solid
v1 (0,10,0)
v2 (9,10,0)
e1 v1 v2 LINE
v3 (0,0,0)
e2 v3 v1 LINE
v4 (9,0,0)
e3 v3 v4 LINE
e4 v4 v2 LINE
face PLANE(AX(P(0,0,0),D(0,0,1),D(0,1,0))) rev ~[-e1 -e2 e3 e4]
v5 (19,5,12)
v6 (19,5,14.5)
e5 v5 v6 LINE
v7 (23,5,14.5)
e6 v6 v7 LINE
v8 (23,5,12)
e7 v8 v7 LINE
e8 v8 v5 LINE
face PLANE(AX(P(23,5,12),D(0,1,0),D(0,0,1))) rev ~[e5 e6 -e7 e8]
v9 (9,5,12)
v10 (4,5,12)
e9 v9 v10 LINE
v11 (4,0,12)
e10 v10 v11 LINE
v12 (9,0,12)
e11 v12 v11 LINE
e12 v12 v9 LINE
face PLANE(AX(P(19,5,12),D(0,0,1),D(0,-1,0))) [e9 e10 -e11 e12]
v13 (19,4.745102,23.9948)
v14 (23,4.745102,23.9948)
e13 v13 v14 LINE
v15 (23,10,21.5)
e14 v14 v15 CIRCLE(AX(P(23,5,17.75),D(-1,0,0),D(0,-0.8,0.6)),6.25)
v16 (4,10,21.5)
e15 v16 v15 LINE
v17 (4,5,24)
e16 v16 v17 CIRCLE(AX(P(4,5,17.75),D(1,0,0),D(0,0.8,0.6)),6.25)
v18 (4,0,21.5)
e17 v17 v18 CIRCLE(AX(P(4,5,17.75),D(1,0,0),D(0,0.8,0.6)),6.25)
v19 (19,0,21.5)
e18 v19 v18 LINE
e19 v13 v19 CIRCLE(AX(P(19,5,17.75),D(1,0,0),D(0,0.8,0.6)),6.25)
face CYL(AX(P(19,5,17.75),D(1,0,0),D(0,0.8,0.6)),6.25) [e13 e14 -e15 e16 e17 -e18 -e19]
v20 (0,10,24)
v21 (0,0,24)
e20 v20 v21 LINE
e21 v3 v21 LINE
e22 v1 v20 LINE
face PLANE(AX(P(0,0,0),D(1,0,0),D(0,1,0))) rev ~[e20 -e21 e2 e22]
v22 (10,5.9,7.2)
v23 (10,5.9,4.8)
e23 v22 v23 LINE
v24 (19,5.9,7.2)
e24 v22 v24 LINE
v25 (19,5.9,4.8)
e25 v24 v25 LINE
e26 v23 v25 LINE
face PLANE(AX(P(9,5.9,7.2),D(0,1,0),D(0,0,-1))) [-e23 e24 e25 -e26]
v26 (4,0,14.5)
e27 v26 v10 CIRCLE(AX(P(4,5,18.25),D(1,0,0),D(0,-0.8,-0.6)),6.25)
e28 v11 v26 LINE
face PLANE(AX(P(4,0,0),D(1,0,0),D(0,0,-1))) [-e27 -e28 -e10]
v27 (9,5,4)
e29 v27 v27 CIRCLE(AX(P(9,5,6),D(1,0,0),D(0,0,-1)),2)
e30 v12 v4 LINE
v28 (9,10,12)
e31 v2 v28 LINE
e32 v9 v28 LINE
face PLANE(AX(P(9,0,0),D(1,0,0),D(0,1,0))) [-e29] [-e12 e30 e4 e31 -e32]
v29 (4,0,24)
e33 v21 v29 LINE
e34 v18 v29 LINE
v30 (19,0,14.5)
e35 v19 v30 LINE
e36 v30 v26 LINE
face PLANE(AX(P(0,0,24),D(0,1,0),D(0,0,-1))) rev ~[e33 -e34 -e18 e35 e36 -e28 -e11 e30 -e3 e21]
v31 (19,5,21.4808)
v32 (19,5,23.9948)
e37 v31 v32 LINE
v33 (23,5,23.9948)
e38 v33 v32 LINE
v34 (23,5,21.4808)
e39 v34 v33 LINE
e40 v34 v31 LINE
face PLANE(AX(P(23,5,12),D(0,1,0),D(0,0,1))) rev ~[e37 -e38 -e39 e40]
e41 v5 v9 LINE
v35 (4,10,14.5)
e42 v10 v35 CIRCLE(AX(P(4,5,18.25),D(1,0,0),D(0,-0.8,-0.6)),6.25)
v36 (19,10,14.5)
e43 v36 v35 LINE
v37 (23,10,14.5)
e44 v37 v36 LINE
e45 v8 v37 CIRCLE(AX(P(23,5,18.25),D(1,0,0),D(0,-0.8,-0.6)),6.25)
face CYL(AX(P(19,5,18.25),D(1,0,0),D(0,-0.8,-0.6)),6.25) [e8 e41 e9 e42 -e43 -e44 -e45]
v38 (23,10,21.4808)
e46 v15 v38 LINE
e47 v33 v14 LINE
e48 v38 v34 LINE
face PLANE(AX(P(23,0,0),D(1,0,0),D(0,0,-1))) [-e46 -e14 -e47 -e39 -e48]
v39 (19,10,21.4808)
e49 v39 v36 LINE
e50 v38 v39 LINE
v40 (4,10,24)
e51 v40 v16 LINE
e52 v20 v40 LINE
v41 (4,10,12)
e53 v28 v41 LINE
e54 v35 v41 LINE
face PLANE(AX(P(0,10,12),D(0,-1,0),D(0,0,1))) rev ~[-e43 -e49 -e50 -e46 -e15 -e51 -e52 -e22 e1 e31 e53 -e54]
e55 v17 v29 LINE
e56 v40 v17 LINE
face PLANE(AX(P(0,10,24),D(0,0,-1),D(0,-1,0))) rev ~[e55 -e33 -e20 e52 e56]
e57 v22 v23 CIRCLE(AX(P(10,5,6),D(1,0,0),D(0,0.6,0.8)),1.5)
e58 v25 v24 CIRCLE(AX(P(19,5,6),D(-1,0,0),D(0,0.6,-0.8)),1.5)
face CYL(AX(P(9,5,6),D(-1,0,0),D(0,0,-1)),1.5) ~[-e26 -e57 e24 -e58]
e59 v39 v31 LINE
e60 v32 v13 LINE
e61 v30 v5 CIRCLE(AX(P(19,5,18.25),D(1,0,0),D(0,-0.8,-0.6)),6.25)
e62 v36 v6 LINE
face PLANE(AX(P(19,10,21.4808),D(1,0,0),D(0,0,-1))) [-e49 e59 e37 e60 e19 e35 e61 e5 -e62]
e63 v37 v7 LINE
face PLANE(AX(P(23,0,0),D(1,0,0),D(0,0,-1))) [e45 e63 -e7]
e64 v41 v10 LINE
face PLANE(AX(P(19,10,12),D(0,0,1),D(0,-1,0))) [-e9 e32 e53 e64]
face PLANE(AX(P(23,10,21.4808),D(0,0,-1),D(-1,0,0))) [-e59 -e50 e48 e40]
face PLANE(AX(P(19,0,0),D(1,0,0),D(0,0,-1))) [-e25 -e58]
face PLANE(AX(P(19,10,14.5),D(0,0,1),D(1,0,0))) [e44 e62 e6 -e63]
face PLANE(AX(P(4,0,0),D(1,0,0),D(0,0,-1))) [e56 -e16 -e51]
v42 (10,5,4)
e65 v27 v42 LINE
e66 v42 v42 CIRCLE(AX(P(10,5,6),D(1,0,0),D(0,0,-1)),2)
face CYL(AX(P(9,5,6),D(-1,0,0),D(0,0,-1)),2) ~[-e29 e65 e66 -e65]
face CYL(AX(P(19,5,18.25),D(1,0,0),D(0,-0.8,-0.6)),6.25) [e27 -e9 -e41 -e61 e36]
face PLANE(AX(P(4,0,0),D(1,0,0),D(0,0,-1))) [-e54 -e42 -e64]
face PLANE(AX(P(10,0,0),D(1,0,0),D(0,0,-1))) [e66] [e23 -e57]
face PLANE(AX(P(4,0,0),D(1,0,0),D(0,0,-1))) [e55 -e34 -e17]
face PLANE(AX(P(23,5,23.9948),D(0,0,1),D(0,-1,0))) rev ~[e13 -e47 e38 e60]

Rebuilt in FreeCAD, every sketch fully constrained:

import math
import FreeCAD as App
import Part
import Sketcher
from FreeCAD import Vector
Q = App.Units.Quantity


def add_polygon(sketch, points):
    """Adds a closed chain of lines whose ends are joined by coincident constraints."""
    first, n = sketch.GeometryCount, len(points)
    for a, b in zip(points, points[1:] + points[:1]):
        sketch.addGeometry(Part.LineSegment(App.Vector(*a, 0), App.Vector(*b, 0)), False)
    for i in range(n):
        sketch.addConstraint(Sketcher.Constraint("Coincident", first + i, 2, first + (i + 1) % n, 1))

doc = App.newDocument("Part")
body = doc.addObject("PartDesign::Body", "Body")

# Sketch on YZ plane
sketch1 = body.newObject("Sketcher::SketchObject", "Sketch")
sketch1.AttachmentSupport = (doc.getObject("YZ_Plane"), [""])
sketch1.MapMode = "FlatFace"
add_polygon(sketch1, [(10, 12), (10, 24), (0, 24), (0, 12)])  # lines 0-3
sketch1.addConstraint([
    Sketcher.Constraint("Vertical", 0),
    Sketcher.Constraint("Horizontal", 1),
    Sketcher.Constraint("Vertical", 2),
    Sketcher.Constraint("Horizontal", 3),
    Sketcher.Constraint("PointOnObject", 1, 2, -2),
    Sketcher.Constraint("DistanceX", 1, 2, 1, 1, Q("10 mm")),
    Sketcher.Constraint("DistanceY", 0, 1, 0, 2, Q("12 mm")),
    Sketcher.Constraint("DistanceY", -1, 1, 0, 2, Q("24 mm")),
])
pad1 = body.newObject("PartDesign::Pad", "Pad")
pad1.Profile = sketch1
pad1.Length = 19

# Sketch on YZ plane
sketch2 = body.newObject("Sketcher::SketchObject", "Sketch001")
sketch2.AttachmentSupport = (doc.getObject("YZ_Plane"), [""])
sketch2.MapMode = "FlatFace"
add_polygon(sketch2, [(10, 0), (10, 12), (0, 12), (0, 0)])  # lines 0-3
sketch2.addConstraint([
    Sketcher.Constraint("Vertical", 0),
    Sketcher.Constraint("Horizontal", 1),
    Sketcher.Constraint("Vertical", 2),
    Sketcher.Constraint("Horizontal", 3),
    Sketcher.Constraint("Coincident", 2, 2, -1, 1),
    Sketcher.Constraint("DistanceX", 1, 2, 1, 1, Q("10 mm")),
    Sketcher.Constraint("DistanceY", 0, 1, 0, 2, Q("12 mm")),
])
pad2 = body.newObject("PartDesign::Pad", "Pad001")
pad2.Profile = sketch2
pad2.Length = 9

# Sketch on YZ plane
sketch3 = body.newObject("Sketcher::SketchObject", "Sketch002")
sketch3.AttachmentSupport = (doc.getObject("YZ_Plane"), [""])
sketch3.MapMode = "FlatFace"
sketch3.AttachmentOffset = App.Placement(Vector(0, 0, 9), App.Rotation())
sketch3.addGeometry([
    Part.Circle(Vector(5, 6, 0), Vector(0, 0, 1), 2),
    Part.Circle(Vector(5, 6, 0), Vector(0, 0, 1), 1.5),
], False)
sketch3.addConstraint([
    Sketcher.Constraint("Coincident", 1, 3, 0, 3),
    Sketcher.Constraint("Diameter", 0, Q("4 mm")),
    Sketcher.Constraint("Diameter", 1, Q("3 mm")),
    Sketcher.Constraint("DistanceX", -1, 1, 0, 3, Q("5 mm")),
    Sketcher.Constraint("DistanceY", -1, 1, 0, 3, Q("6 mm")),
])
pad3 = body.newObject("PartDesign::Pad", "Pad002")
pad3.Profile = sketch3
pad3.Length = 1

# Sketch on YZ plane
sketch4 = body.newObject("Sketcher::SketchObject", "Sketch003")
sketch4.AttachmentSupport = (doc.getObject("YZ_Plane"), [""])
sketch4.MapMode = "FlatFace"
sketch4.AttachmentOffset = App.Placement(Vector(0, 0, 9), App.Rotation())
sketch4.addGeometry([
    Part.ArcOfCircle(Part.Circle(Vector(5, 6, 0), Vector(0, 0, 1), 1.5), math.radians(53.130102), math.radians(306.869898)),
    Part.LineSegment(Vector(5.9, 4.8, 0), Vector(5.9, 7.2, 0)),
], False)
sketch4.addConstraint([
    Sketcher.Constraint("Coincident", 0, 1, 1, 2),
    Sketcher.Constraint("Coincident", 1, 1, 0, 2),
    Sketcher.Constraint("Vertical", 1),
    Sketcher.Constraint("Radius", 0, Q("1.5 mm")),
    Sketcher.Constraint("DistanceY", 1, 1, 1, 2, Q("2.4 mm")),
    Sketcher.Constraint("DistanceX", -1, 1, 0, 3, Q("5 mm")),
    Sketcher.Constraint("DistanceY", -1, 1, 0, 3, Q("6 mm")),
])
pad4 = body.newObject("PartDesign::Pad", "Pad003")
pad4.Profile = sketch4
pad4.Length = 10

# Sketch on YZ plane
sketch5 = body.newObject("Sketcher::SketchObject", "Sketch004")
sketch5.AttachmentSupport = (doc.getObject("YZ_Plane"), [""])
sketch5.MapMode = "FlatFace"
sketch5.AttachmentOffset = App.Placement(Vector(0, 0, 9), App.Rotation())
sketch5.addGeometry([
    Part.LineSegment(Vector(5.9, 7.2, 0), Vector(5.9, 4.8, 0)),
    Part.ArcOfCircle(Part.Circle(Vector(5, 6, 0), Vector(0, 0, 1), 1.5), math.radians(-53.130102), math.radians(53.130102)),
], False)
sketch5.addConstraint([
    Sketcher.Constraint("Coincident", 0, 1, 1, 2),
    Sketcher.Constraint("Coincident", 1, 1, 0, 2),
    Sketcher.Constraint("Vertical", 0),
    Sketcher.Constraint("Radius", 1, Q("1.5 mm")),
    Sketcher.Constraint("DistanceY", 0, 2, 0, 1, Q("2.4 mm")),
    Sketcher.Constraint("DistanceX", -1, 1, 1, 3, Q("5 mm")),
    Sketcher.Constraint("DistanceY", -1, 1, 1, 3, Q("6 mm")),
])
pad5 = body.newObject("PartDesign::Pad", "Pad004")
pad5.Profile = sketch5
pad5.Length = 1

# Sketch on YZ plane
sketch6 = body.newObject("Sketcher::SketchObject", "Sketch005")
sketch6.AttachmentSupport = (doc.getObject("YZ_Plane"), [""])
sketch6.MapMode = "FlatFace"
sketch6.AttachmentOffset = App.Placement(Vector(0, 0, 19), App.Rotation())
sketch6.addGeometry([
    Part.LineSegment(Vector(10, 21.5, 0), Vector(10, 24, 0)),  # 0
    Part.LineSegment(Vector(10, 24, 0), Vector(5, 24, 0)),  # 1
    Part.ArcOfCircle(Part.Circle(Vector(5, 17.75, 0), Vector(0, 0, 1), 6.25), math.radians(36.869898), math.radians(90)),  # 2
    Part.ArcOfCircle(Part.Circle(Vector(5, 17.75, 0), Vector(0, 0, 1), 6.25), math.radians(90), math.radians(143.130102)),  # 3
    Part.LineSegment(Vector(5, 24, 0), Vector(0, 24, 0)),  # 4
    Part.LineSegment(Vector(0, 24, 0), Vector(0, 21.5, 0)),  # 5
], False)
sketch6.addConstraint([
    Sketcher.Constraint("Coincident", 0, 2, 1, 1),
    Sketcher.Constraint("Tangent", 1, 2, 2, 2),
    Sketcher.Constraint("Coincident", 2, 1, 0, 1),
    Sketcher.Constraint("Tangent", 3, 1, 4, 1),
    Sketcher.Constraint("Coincident", 4, 2, 5, 1),
    Sketcher.Constraint("Coincident", 5, 2, 3, 2),
    Sketcher.Constraint("Vertical", 0),
    Sketcher.Constraint("Horizontal", 1),
    Sketcher.Constraint("Horizontal", 4),
    Sketcher.Constraint("Vertical", 5),
    Sketcher.Constraint("Coincident", 3, 3, 2, 3),
    Sketcher.Constraint("Equal", 2, 3),
    Sketcher.Constraint("PointOnObject", 4, 2, -2),
    Sketcher.Constraint("Horizontal", 2, 1, 5, 2),
    Sketcher.Constraint("DistanceY", 0, 1, 0, 2, Q("2.5 mm")),
    Sketcher.Constraint("DistanceX", 1, 2, 1, 1, Q("5 mm")),
    Sketcher.Constraint("DistanceY", -1, 1, 0, 2, Q("24 mm")),
])
pocket1 = body.newObject("PartDesign::Pocket", "Pocket")
pocket1.Profile = sketch6
pocket1.Length = 15

# Sketch on YZ plane
sketch7 = body.newObject("Sketcher::SketchObject", "Sketch006")
sketch7.AttachmentSupport = (doc.getObject("YZ_Plane"), [""])
sketch7.MapMode = "FlatFace"
sketch7.AttachmentOffset = App.Placement(Vector(0, 0, 19), App.Rotation())
sketch7.addGeometry([
    Part.LineSegment(Vector(10, 12, 0), Vector(10, 14.5, 0)),  # 0
    Part.ArcOfCircle(Part.Circle(Vector(5, 18.25, 0), Vector(0, 0, 1), 6.25), math.radians(-90), math.radians(-36.869898)),  # 1
    Part.LineSegment(Vector(5, 12, 0), Vector(10, 12, 0)),  # 2
    Part.ArcOfCircle(Part.Circle(Vector(5, 18.25, 0), Vector(0, 0, 1), 6.25), math.radians(-143.130102), math.radians(-90)),  # 3
    Part.LineSegment(Vector(0, 14.5, 0), Vector(0, 12, 0)),  # 4
    Part.LineSegment(Vector(0, 12, 0), Vector(5, 12, 0)),  # 5
], False)
sketch7.addConstraint([
    Sketcher.Constraint("Coincident", 0, 2, 1, 2),
    Sketcher.Constraint("Tangent", 1, 1, 2, 1),
    Sketcher.Constraint("Coincident", 2, 2, 0, 1),
    Sketcher.Constraint("Coincident", 3, 1, 4, 1),
    Sketcher.Constraint("Coincident", 4, 2, 5, 1),
    Sketcher.Constraint("Tangent", 5, 2, 3, 2),
    Sketcher.Constraint("Vertical", 0),
    Sketcher.Constraint("Horizontal", 2),
    Sketcher.Constraint("Vertical", 4),
    Sketcher.Constraint("Horizontal", 5),
    Sketcher.Constraint("Coincident", 3, 3, 1, 3),
    Sketcher.Constraint("Equal", 1, 3),
    Sketcher.Constraint("PointOnObject", 3, 1, -2),
    Sketcher.Constraint("Horizontal", 0, 2, 3, 1),
    Sketcher.Constraint("DistanceY", 0, 1, 0, 2, Q("2.5 mm")),
    Sketcher.Constraint("DistanceX", 2, 1, 2, 2, Q("5 mm")),
    Sketcher.Constraint("DistanceY", -1, 1, 1, 1, Q("12 mm")),
])
pocket2 = body.newObject("PartDesign::Pocket", "Pocket001")
pocket2.Profile = sketch7
pocket2.Length = 15

# Sketch on YZ plane
sketch8 = body.newObject("Sketcher::SketchObject", "Sketch007")
sketch8.AttachmentSupport = (doc.getObject("YZ_Plane"), [""])
sketch8.MapMode = "FlatFace"
sketch8.AttachmentOffset = App.Placement(Vector(0, 0, 19), App.Rotation())
sketch8.addGeometry([
    Part.ArcOfCircle(Part.Circle(Vector(5, 17.75, 0), Vector(0, 0, 1), 6.25), math.radians(36.869898), math.radians(143.130102)),
    Part.LineSegment(Vector(0, 21.5, 0), Vector(0, 14.5, 0)),
    Part.ArcOfCircle(Part.Circle(Vector(5, 18.25, 0), Vector(0, 0, 1), 6.25), math.radians(-143.130102), math.radians(-36.869898)),
    Part.LineSegment(Vector(10, 14.5, 0), Vector(10, 21.5, 0)),
], False)
sketch8.addConstraint([
    Sketcher.Constraint("Coincident", 0, 2, 1, 1),
    Sketcher.Constraint("Coincident", 1, 2, 2, 1),
    Sketcher.Constraint("Coincident", 2, 2, 3, 1),
    Sketcher.Constraint("Coincident", 3, 2, 0, 1),
    Sketcher.Constraint("Vertical", 1),
    Sketcher.Constraint("Vertical", 3),
    Sketcher.Constraint("Equal", 0, 2),
    Sketcher.Constraint("PointOnObject", 0, 2, -2),
    Sketcher.Constraint("Horizontal", 1, 2, 2, 2),
    Sketcher.Constraint("Horizontal", 0, 2, 3, 2),
    Sketcher.Constraint("DistanceY", 1, 2, 1, 1, Q("7 mm")),
    Sketcher.Constraint("Radius", 0, Q("6.25 mm")),
    Sketcher.Constraint("DistanceX", -1, 1, 0, 3, Q("5 mm")),
    Sketcher.Constraint("DistanceY", -1, 1, 0, 2, Q("21.5 mm")),
])
pad6 = body.newObject("PartDesign::Pad", "Pad005")
pad6.Profile = sketch8
pad6.Length = 4

# Sketch on YZ plane
sketch9 = body.newObject("Sketcher::SketchObject", "Sketch008")
sketch9.AttachmentSupport = (doc.getObject("YZ_Plane"), [""])
sketch9.MapMode = "FlatFace"
sketch9.AttachmentOffset = App.Placement(Vector(0, 0, 23), App.Rotation())
add_polygon(sketch9, [(0, 12), (5, 12), (5, 23.9948), (0, 23.9948)])  # lines 0-3
sketch9.addConstraint([
    Sketcher.Constraint("Horizontal", 0),
    Sketcher.Constraint("Vertical", 1),
    Sketcher.Constraint("Horizontal", 2),
    Sketcher.Constraint("Vertical", 3),
    Sketcher.Constraint("PointOnObject", 2, 2, -2),
    Sketcher.Constraint("DistanceX", 0, 1, 0, 2, Q("5 mm")),
    Sketcher.Constraint("DistanceY", -1, 1, 0, 2, Q("12 mm")),
    Sketcher.Constraint("DistanceY", 1, 1, 1, 2, Q("11.9948 mm")),
])
pocket3 = body.newObject("PartDesign::Pocket", "Pocket002")
pocket3.Profile = sketch9
pocket3.Length = 4

# Sketch on XZ plane
sketch10 = body.newObject("Sketcher::SketchObject", "Sketch009")
sketch10.AttachmentSupport = (doc.getObject("XZ_Plane"), [""])
sketch10.MapMode = "FlatFace"
sketch10.AttachmentOffset = App.Placement(Vector(0, 0, -10), App.Rotation())
add_polygon(sketch10, [(19, 21.4808), (23, 21.4808), (23, 14.5), (19, 14.5)])  # lines 0-3
sketch10.addConstraint([
    Sketcher.Constraint("Horizontal", 0),
    Sketcher.Constraint("Vertical", 1),
    Sketcher.Constraint("Horizontal", 2),
    Sketcher.Constraint("Vertical", 3),
    Sketcher.Constraint("DistanceX", 0, 1, 0, 2, Q("4 mm")),
    Sketcher.Constraint("DistanceX", -1, 1, 0, 2, Q("23 mm")),
    Sketcher.Constraint("DistanceY", -1, 1, 1, 2, Q("14.5 mm")),
    Sketcher.Constraint("DistanceY", 1, 2, 1, 1, Q("6.9808 mm")),
])
pocket4 = body.newObject("PartDesign::Pocket", "Pocket003")
pocket4.Profile = sketch10
pocket4.Length = 8
pocket4.Reversed = True

doc.recompute()
